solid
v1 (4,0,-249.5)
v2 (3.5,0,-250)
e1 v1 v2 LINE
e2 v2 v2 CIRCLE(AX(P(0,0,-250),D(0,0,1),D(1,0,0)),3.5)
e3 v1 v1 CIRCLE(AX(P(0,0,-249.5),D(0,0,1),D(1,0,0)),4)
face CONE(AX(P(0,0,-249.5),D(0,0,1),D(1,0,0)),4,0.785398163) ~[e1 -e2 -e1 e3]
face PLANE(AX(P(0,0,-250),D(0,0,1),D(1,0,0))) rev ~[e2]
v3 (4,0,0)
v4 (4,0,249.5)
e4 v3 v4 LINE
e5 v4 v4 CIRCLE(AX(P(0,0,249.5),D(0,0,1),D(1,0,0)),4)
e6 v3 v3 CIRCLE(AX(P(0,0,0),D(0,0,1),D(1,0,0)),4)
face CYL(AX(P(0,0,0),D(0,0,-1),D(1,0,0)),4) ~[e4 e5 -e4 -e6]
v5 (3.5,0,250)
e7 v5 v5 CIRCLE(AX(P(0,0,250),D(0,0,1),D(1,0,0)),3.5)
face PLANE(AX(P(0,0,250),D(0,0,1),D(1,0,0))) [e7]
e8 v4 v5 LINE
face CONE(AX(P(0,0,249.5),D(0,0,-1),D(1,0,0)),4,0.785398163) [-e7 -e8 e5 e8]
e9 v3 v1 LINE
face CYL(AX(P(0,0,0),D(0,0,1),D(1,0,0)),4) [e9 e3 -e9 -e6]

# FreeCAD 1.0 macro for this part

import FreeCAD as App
import Part
import Sketcher

V = App.Vector


def edges_at(feature, points):
    """Names of the edges that pass closest to the given points."""
    edges = feature.Shape.Edges
    near = lambda p: min(range(len(edges)), key=lambda i: edges[i].distToShape(Part.Vertex(*p))[0])
    return sorted({f"Edge{near(p) + 1}" for p in points})

doc = App.newDocument("Part")
body = doc.addObject("PartDesign::Body", "Body")

sketch1 = body.newObject("Sketcher::SketchObject", "Sketch")
sketch1.AttachmentSupport = (doc.getObject("XY_Plane"), [""])
sketch1.MapMode = "FlatFace"
sketch1.addGeometry(Part.Circle(V(0, 0, 0), V(0, 0, 1), 4), False)
sketch1.addConstraint([
    Sketcher.Constraint("Coincident", 0, 3, -1, 1),
    Sketcher.Constraint("Diameter", 0, 8.0),
])
pad1 = body.newObject("PartDesign::Pad", "Pad")
pad1.Profile = sketch1
pad1.Length = 500
pad1.Midplane = True
doc.recompute()

chamfer = body.newObject("PartDesign::Chamfer", "Chamfer")
chamfer.Base = (pad1, edges_at(pad1, [(-4, 0, 250), (-4, 0, -250)]))
chamfer.Size = 0.5

doc.recompute()
